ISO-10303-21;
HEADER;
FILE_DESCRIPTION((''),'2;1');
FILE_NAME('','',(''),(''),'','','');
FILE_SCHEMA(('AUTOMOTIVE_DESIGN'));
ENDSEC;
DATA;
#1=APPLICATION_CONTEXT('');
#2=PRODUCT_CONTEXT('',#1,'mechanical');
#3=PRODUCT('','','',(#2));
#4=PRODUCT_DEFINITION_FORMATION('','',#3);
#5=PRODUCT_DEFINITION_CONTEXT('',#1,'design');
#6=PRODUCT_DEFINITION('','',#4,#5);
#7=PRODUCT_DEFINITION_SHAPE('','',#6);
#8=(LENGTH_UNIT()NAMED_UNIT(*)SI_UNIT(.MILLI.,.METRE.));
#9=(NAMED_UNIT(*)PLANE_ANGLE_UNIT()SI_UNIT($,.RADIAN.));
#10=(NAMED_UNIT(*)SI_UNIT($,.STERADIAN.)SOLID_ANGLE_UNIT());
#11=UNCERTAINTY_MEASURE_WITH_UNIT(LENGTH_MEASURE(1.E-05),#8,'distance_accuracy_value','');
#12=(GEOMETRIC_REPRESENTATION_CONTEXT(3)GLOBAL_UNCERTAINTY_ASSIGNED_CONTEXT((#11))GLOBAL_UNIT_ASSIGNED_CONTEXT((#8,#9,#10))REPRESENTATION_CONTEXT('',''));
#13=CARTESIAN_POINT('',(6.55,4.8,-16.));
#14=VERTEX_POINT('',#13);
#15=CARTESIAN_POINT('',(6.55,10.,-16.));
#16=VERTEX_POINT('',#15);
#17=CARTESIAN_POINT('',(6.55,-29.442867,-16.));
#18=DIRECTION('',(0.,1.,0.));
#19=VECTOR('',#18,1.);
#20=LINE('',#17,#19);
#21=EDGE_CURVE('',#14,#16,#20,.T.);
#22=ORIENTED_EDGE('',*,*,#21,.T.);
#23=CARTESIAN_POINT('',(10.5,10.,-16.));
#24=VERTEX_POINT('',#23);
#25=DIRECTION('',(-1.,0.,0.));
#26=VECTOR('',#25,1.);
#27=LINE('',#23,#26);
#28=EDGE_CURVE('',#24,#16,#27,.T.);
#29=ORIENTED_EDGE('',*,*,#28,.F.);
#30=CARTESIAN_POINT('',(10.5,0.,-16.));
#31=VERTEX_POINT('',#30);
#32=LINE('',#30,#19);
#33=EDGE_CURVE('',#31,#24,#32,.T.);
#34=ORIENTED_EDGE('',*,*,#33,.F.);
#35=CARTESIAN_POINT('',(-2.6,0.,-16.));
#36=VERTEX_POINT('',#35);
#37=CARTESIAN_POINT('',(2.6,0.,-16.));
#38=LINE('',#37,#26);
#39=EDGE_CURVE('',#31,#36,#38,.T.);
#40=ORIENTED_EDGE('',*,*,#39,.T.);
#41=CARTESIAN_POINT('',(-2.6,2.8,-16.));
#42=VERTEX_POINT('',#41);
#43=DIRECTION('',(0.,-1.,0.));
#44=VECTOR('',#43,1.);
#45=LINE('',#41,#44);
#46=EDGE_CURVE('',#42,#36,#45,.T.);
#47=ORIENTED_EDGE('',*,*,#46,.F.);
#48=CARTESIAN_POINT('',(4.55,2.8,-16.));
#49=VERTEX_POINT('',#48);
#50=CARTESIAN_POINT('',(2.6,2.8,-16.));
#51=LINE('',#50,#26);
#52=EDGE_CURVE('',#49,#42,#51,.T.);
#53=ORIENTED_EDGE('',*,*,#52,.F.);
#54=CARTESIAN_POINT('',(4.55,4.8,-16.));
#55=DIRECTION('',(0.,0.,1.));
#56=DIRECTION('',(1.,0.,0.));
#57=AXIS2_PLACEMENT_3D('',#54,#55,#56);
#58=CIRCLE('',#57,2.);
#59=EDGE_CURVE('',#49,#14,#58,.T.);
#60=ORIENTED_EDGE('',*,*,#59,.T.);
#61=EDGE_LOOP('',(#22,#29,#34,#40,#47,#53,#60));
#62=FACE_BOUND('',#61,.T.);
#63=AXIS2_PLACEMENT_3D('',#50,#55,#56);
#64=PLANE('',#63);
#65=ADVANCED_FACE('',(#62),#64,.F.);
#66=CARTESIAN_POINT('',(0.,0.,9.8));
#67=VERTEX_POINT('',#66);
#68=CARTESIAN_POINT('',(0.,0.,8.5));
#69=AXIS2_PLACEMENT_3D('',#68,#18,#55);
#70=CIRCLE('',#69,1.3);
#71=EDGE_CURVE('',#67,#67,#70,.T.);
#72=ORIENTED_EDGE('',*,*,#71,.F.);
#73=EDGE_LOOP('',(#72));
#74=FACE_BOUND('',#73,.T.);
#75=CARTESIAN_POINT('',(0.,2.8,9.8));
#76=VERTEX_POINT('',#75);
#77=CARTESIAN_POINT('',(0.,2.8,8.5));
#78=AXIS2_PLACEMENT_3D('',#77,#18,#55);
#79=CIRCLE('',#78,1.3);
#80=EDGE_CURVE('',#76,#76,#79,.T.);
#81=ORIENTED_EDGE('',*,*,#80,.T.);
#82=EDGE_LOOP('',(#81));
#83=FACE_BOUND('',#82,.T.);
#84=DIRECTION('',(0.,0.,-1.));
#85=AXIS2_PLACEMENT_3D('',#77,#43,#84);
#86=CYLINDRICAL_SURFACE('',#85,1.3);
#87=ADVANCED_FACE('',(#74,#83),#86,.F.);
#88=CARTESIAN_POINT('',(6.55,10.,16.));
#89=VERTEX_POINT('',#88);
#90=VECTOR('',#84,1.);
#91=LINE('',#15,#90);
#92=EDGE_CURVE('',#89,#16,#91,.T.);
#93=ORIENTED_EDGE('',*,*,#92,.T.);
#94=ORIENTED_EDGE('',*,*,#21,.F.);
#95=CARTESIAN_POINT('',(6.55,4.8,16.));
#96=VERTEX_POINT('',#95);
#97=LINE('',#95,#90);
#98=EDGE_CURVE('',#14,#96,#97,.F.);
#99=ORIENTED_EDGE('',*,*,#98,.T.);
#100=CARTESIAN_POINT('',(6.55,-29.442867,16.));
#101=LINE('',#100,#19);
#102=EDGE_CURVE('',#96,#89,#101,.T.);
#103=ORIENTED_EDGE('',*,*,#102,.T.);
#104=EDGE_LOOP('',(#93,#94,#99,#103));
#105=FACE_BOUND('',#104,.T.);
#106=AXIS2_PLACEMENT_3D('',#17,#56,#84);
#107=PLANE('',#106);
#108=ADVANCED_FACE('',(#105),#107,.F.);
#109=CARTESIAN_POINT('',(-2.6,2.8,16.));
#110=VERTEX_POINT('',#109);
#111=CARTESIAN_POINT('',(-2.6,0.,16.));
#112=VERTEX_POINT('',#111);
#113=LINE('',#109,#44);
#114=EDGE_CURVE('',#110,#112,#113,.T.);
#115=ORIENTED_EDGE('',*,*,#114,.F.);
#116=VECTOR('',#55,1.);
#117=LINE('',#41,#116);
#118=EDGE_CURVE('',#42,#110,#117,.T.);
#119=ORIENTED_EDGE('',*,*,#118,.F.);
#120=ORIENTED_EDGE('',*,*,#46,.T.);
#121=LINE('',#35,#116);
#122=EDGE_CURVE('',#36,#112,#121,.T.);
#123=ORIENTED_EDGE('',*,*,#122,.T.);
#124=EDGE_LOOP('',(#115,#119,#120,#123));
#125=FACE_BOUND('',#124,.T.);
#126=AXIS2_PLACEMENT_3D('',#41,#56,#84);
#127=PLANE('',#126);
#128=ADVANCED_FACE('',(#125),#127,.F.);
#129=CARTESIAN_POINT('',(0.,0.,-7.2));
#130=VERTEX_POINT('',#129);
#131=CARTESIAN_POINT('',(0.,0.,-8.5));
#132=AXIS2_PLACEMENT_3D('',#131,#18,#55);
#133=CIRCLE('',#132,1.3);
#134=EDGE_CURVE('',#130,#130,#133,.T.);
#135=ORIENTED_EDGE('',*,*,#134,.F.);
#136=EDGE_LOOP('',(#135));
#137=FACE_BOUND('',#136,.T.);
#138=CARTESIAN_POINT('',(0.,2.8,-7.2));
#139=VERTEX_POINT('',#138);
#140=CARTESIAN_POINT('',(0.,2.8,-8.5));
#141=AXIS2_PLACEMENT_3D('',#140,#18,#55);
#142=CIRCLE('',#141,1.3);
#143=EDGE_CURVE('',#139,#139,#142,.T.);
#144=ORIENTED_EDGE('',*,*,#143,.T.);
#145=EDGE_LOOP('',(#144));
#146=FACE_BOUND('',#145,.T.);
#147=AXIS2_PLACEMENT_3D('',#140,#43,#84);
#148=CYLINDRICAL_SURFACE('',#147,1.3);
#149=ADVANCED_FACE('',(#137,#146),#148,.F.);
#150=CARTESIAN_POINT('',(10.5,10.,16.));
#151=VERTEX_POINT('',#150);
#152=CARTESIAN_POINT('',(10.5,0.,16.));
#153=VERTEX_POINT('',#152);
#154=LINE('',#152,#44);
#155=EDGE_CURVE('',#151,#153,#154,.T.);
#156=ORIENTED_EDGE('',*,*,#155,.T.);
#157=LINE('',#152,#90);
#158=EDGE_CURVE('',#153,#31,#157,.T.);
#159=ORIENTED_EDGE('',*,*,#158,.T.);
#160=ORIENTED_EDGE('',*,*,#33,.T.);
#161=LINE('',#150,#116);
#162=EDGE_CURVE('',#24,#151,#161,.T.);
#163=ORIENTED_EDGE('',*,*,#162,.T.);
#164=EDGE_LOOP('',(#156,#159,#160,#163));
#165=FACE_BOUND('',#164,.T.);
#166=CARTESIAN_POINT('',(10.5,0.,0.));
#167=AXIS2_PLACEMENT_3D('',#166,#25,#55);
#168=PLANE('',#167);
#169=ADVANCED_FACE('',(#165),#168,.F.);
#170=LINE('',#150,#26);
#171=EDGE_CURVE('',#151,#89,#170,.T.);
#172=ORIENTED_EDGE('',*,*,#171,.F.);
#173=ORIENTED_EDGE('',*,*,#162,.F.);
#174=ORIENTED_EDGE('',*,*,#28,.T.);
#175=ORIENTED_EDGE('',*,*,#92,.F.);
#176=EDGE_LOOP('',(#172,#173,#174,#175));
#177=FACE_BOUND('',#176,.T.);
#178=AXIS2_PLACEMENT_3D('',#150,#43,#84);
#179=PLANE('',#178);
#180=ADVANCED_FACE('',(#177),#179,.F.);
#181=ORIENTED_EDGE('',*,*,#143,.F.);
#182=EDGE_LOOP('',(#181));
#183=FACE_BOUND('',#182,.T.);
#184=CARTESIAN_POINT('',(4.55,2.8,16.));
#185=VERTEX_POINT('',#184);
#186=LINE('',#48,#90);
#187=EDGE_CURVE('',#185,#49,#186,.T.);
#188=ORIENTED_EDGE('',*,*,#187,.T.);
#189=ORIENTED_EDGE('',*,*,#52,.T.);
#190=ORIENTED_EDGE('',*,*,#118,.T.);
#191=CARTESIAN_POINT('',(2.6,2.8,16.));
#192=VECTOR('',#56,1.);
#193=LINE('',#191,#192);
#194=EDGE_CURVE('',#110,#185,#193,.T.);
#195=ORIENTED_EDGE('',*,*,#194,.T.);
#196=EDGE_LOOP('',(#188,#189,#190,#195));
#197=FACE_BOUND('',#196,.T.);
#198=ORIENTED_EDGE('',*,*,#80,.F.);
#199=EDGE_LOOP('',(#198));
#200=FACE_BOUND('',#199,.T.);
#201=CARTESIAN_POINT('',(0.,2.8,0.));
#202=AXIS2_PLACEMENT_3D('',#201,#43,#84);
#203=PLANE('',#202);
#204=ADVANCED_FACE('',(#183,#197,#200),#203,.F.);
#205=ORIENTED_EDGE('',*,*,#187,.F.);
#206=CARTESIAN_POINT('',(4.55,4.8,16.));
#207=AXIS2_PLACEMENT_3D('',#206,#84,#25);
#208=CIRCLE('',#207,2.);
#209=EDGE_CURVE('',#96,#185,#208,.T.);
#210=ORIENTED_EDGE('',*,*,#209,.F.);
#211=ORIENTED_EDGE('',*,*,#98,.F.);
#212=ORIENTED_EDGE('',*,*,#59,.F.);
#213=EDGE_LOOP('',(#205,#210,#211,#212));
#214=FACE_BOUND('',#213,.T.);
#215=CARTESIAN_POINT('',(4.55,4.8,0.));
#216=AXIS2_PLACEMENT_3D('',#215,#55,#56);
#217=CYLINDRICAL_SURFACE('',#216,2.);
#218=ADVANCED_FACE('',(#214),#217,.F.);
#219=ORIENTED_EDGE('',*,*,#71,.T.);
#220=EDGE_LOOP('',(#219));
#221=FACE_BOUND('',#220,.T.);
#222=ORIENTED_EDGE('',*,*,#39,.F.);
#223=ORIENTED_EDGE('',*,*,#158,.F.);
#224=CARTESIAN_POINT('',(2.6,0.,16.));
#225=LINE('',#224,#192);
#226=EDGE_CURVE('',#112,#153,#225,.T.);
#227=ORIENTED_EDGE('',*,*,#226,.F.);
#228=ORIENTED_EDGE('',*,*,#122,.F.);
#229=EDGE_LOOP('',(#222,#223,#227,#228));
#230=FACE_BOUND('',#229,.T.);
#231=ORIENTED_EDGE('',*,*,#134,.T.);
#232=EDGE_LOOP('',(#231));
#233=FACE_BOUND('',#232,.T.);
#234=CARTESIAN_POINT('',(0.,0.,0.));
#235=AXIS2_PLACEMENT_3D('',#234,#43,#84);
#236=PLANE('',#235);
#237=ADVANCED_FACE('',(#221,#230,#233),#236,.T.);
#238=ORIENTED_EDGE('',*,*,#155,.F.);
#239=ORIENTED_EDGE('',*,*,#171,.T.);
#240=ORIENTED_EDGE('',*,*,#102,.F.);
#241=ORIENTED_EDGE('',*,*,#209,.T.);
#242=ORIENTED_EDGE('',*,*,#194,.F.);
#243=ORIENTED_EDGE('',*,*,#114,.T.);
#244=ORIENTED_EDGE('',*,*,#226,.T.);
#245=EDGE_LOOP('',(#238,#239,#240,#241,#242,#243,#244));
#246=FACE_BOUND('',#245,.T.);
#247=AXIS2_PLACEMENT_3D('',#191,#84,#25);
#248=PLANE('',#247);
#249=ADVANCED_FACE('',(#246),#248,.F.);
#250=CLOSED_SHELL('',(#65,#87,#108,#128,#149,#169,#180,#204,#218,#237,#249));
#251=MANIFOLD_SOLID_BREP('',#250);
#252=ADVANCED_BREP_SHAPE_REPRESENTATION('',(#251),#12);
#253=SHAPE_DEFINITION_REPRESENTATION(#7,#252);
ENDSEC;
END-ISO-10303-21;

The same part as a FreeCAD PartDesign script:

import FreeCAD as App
import Part
import Sketcher


def edges_at(feature, points):
    """Names of the edges that pass closest to the given points."""
    edges = feature.Shape.Edges
    near = lambda p: min(range(len(edges)), key=lambda i: edges[i].distToShape(Part.Vertex(*p))[0])
    return sorted({f"Edge{near(p) + 1}" for p in points})

doc = App.newDocument("Part")
body = doc.addObject("PartDesign::Body", "Body")

# Sketch on XZ plane
sketch1 = body.newObject("Sketcher::SketchObject", "Sketch")
sketch1.AttachmentSupport = (doc.getObject("XZ_Plane"), [""])
sketch1.MapMode = "FlatFace"
sketch1.addGeometry(Part.LineSegment(App.Vector(-2.6, -16, 0), App.Vector(-2.6, 16, 0)), False)
sketch1.addGeometry(Part.LineSegment(App.Vector(-2.6, 16, 0), App.Vector(2.6, 16, 0)), False)
sketch1.addGeometry(Part.LineSegment(App.Vector(2.6, 16, 0), App.Vector(2.6, -16, 0)), False)
sketch1.addGeometry(Part.LineSegment(App.Vector(2.6, -16, 0), App.Vector(-2.6, -16, 0)), False)
sketch1.addGeometry(Part.Circle(App.Vector(0, 8.5, 0), App.Vector(0, 0, 1), 1.3), False)
sketch1.addGeometry(Part.Circle(App.Vector(0, -8.5, 0), App.Vector(0, 0, 1), 1.3), False)
sketch1.addConstraint(Sketcher.Constraint("Coincident", 0, 2, 1, 1))
sketch1.addConstraint(Sketcher.Constraint("Coincident", 1, 2, 2, 1))
sketch1.addConstraint(Sketcher.Constraint("Coincident", 2, 2, 3, 1))
sketch1.addConstraint(Sketcher.Constraint("Coincident", 3, 2, 0, 1))
sketch1.addConstraint(Sketcher.Constraint("Vertical", 0))
sketch1.addConstraint(Sketcher.Constraint("Horizontal", 1))
sketch1.addConstraint(Sketcher.Constraint("Vertical", 2))
sketch1.addConstraint(Sketcher.Constraint("Horizontal", 3))
sketch1.addConstraint(Sketcher.Constraint("Equal", 4, 5))
sketch1.addConstraint(Sketcher.Constraint("Symmetric", 4, 3, 5, 3, -1, 1))
sketch1.addConstraint(Sketcher.Constraint("Symmetric", 0, 2, 2, 2, -1, 1))
sketch1.addConstraint(Sketcher.Constraint("PointOnObject", 4, 3, -2))
sketch1.addConstraint(Sketcher.Constraint("Diameter", 4, 2.6))
sketch1.addConstraint(Sketcher.Constraint("DistanceY", 0, 1, 0, 2, 32.0))
sketch1.addConstraint(Sketcher.Constraint("DistanceX", 1, 1, 1, 2, 5.2))
sketch1.addConstraint(Sketcher.Constraint("DistanceY", 5, 3, 4, 3, 17.0))
pad1 = body.newObject("PartDesign::Pad", "Pad")
pad1.Profile = sketch1
pad1.Length = 2.8
pad1.Reversed = True

# Sketch on YZ plane
sketch2 = body.newObject("Sketcher::SketchObject", "Sketch001")
sketch2.AttachmentSupport = (doc.getObject("YZ_Plane"), [""])
sketch2.MapMode = "FlatFace"
sketch2.AttachmentOffset = App.Placement(App.Vector(0, 0, 2.6), App.Rotation())
sketch2.addGeometry(Part.LineSegment(App.Vector(10, 16, 0), App.Vector(0, 16, 0)), False)
sketch2.addGeometry(Part.LineSegment(App.Vector(0, 16, 0), App.Vector(0, -16, 0)), False)
sketch2.addGeometry(Part.LineSegment(App.Vector(0, -16, 0), App.Vector(10, -16, 0)), False)
sketch2.addGeometry(Part.LineSegment(App.Vector(10, -16, 0), App.Vector(10, 16, 0)), False)
sketch2.addConstraint(Sketcher.Constraint("Coincident", 0, 2, 1, 1))
sketch2.addConstraint(Sketcher.Constraint("Coincident", 1, 2, 2, 1))
sketch2.addConstraint(Sketcher.Constraint("Coincident", 2, 2, 3, 1))
sketch2.addConstraint(Sketcher.Constraint("Coincident", 3, 2, 0, 1))
sketch2.addConstraint(Sketcher.Constraint("Horizontal", 0))
sketch2.addConstraint(Sketcher.Constraint("Vertical", 1))
sketch2.addConstraint(Sketcher.Constraint("Horizontal", 2))
sketch2.addConstraint(Sketcher.Constraint("Vertical", 3))
sketch2.addConstraint(Sketcher.Constraint("Symmetric", 0, 2, 1, 2, -1, 1))
sketch2.addConstraint(Sketcher.Constraint("DistanceX", 0, 2, 0, 1, 10.0))
sketch2.addConstraint(Sketcher.Constraint("DistanceY", 1, 2, 1, 1, 32.0))
pad2 = body.newObject("PartDesign::Pad", "Pad001")
pad2.Profile = sketch2
pad2.Length = 7.9

# Sketch on XZ plane
sketch3 = body.newObject("Sketcher::SketchObject", "Sketch002")
sketch3.AttachmentSupport = (doc.getObject("XZ_Plane"), [""])
sketch3.MapMode = "FlatFace"
sketch3.AttachmentOffset = App.Placement(App.Vector(0, 0, -10), App.Rotation())
sketch3.addGeometry(Part.LineSegment(App.Vector(2.6, -16, 0), App.Vector(2.6, 16, 0)), False)
sketch3.addGeometry(Part.LineSegment(App.Vector(2.6, 16, 0), App.Vector(6.5, 16, 0)), False)
sketch3.addGeometry(Part.LineSegment(App.Vector(6.5, 16, 0), App.Vector(6.5, -16, 0)), False)
sketch3.addGeometry(Part.LineSegment(App.Vector(6.5, -16, 0), App.Vector(2.6, -16, 0)), False)
sketch3.addConstraint(Sketcher.Constraint("Coincident", 0, 2, 1, 1))
sketch3.addConstraint(Sketcher.Constraint("Coincident", 1, 2, 2, 1))
sketch3.addConstraint(Sketcher.Constraint("Coincident", 2, 2, 3, 1))
sketch3.addConstraint(Sketcher.Constraint("Coincident", 3, 2, 0, 1))
sketch3.addConstraint(Sketcher.Constraint("Vertical", 0))
sketch3.addConstraint(Sketcher.Constraint("Horizontal", 1))
sketch3.addConstraint(Sketcher.Constraint("Vertical", 2))
sketch3.addConstraint(Sketcher.Constraint("Horizontal", 3))
sketch3.addConstraint(Sketcher.Constraint("DistanceY", 0, 1, 0, 2, 32.0))
sketch3.addConstraint(Sketcher.Constraint("DistanceY", -1, 1, 0, 2, 16.0))
sketch3.addConstraint(Sketcher.Constraint("DistanceX", 1, 1, 1, 2, 3.95))
sketch3.addConstraint(Sketcher.Constraint("DistanceX", -1, 1, 0, 2, 2.6))
pocket1 = body.newObject("PartDesign::Pocket", "Pocket")
pocket1.Profile = sketch3
pocket1.Length = 7.2
pocket1.Reversed = True
doc.recompute()

fillet = body.newObject("PartDesign::Fillet", "Fillet")
fillet.Base = (pocket1, edges_at(pocket1, [(6.55, 2.8, 0)]))
fillet.Radius = 2

doc.recompute()
